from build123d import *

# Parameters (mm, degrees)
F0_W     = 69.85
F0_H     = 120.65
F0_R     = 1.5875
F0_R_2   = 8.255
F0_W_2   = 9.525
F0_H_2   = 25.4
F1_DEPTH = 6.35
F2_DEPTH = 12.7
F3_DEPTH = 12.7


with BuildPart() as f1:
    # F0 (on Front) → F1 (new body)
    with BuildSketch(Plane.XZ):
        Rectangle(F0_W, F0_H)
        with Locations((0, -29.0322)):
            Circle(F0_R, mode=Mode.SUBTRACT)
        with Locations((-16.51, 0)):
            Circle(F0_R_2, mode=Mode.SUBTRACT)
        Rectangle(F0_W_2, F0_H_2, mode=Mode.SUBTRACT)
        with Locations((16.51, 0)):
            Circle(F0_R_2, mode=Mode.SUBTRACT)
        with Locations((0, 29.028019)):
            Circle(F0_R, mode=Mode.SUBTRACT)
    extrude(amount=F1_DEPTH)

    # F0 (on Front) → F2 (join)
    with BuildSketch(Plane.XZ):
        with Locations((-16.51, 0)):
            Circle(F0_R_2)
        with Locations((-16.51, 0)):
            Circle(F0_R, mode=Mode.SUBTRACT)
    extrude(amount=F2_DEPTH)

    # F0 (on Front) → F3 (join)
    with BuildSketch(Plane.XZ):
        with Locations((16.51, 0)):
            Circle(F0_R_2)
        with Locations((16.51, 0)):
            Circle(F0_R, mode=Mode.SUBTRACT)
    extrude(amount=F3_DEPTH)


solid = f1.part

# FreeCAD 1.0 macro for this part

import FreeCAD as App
import Part
import Sketcher
Q = App.Units.Quantity

doc = App.newDocument("Part")
params = doc.addObject("Spreadsheet::Sheet", "Params")
for row, (alias, value) in enumerate([
    ("sketch1_diameter", "0.65 in"),
    ("sketch1_height", "1 in"),
    ("sketch1_diameter2", "0.125 in"),
    ("sketch1_width", "2.75 in"),
    ("sketch1_height2", "4.75 in"),
    ("pad1_length", "0.25 in"),
    ("sketch2_diameter", "0.65 in"),
    ("sketch2_diameter2", "0.125 in"),
    ("pad2_length", "0.5 in"),
    ("sketch3_diameter", "0.65 in"),
    ("sketch3_diameter2", "0.125 in"),
    ("pad3_length", "0.5 in"),
], start=1):
    params.set(f"A{row}", alias)
    params.set(f"B{row}", "=" + value)
    params.setAlias(f"B{row}", alias)

body = doc.addObject("PartDesign::Body", "Body")

# Sketch on XZ plane
sketch1 = body.newObject("Sketcher::SketchObject", "Sketch")
sketch1.AttachmentSupport = (doc.getObject("XZ_Plane"), [""])
sketch1.MapMode = "FlatFace"
sketch1.addGeometry([
    Part.LineSegment(App.Vector(-34.9, 60.3, 0), App.Vector(-34.9, -60.3, 0)),  # 0
    Part.LineSegment(App.Vector(-34.9, -60.3, 0), App.Vector(34.9, -60.3, 0)),  # 1
    Part.LineSegment(App.Vector(34.9, -60.3, 0), App.Vector(34.9, 60.3, 0)),  # 2
    Part.LineSegment(App.Vector(34.9, 60.3, 0), App.Vector(-34.9, 60.3, 0)),  # 3
    Part.Circle(App.Vector(0, -29, 0), App.Vector(0, 0, 1), 1.6),  # 4
    Part.Circle(App.Vector(-16.5, 0, 0), App.Vector(0, 0, 1), 8.3),  # 5
    Part.LineSegment(App.Vector(4.8, -12.7, 0), App.Vector(-4.8, -12.7, 0)),  # 6
    Part.LineSegment(App.Vector(-4.8, -12.7, 0), App.Vector(-4.8, 12.7, 0)),  # 7
    Part.LineSegment(App.Vector(-4.8, 12.7, 0), App.Vector(4.8, 12.7, 0)),  # 8
    Part.LineSegment(App.Vector(4.8, 12.7, 0), App.Vector(4.8, -12.7, 0)),  # 9
    Part.Circle(App.Vector(0, 29, 0), App.Vector(0, 0, 1), 1.6),  # 10
    Part.Circle(App.Vector(16.5, 0, 0), App.Vector(0, 0, 1), 8.3),  # 11
], False)
sketch1.addConstraint([
    Sketcher.Constraint("Coincident", 0, 2, 1, 1),
    Sketcher.Constraint("Coincident", 1, 2, 2, 1),
    Sketcher.Constraint("Coincident", 2, 2, 3, 1),
    Sketcher.Constraint("Coincident", 3, 2, 0, 1),
    Sketcher.Constraint("Coincident", 6, 2, 7, 1),
    Sketcher.Constraint("Coincident", 7, 2, 8, 1),
    Sketcher.Constraint("Coincident", 8, 2, 9, 1),
    Sketcher.Constraint("Coincident", 9, 2, 6, 1),
    Sketcher.Constraint("Vertical", 0),
    Sketcher.Constraint("Horizontal", 1),
    Sketcher.Constraint("Vertical", 2),
    Sketcher.Constraint("Horizontal", 3),
    Sketcher.Constraint("Horizontal", 6),
    Sketcher.Constraint("Vertical", 7),
    Sketcher.Constraint("Horizontal", 8),
    Sketcher.Constraint("Vertical", 9),
    Sketcher.Constraint("Equal", 4, 10),
    Sketcher.Constraint("Equal", 5, 11),
    Sketcher.Constraint("Symmetric", 5, 3, 11, 3, -1, 1),
    Sketcher.Constraint("Symmetric", 0, 2, 2, 2, -1, 1),
    Sketcher.Constraint("Symmetric", 6, 2, 8, 2, -1, 1),
    Sketcher.Constraint("PointOnObject", 4, 3, -2),
    Sketcher.Constraint("PointOnObject", 5, 3, -1),
    Sketcher.Constraint("PointOnObject", 10, 3, -2),
    Sketcher.Constraint("Diameter", 5, Q("0.65 in")),
    Sketcher.Constraint("DistanceY", 7, 1, 7, 2, Q("1 in")),
    Sketcher.Constraint("Diameter", 4, Q("0.125 in")),
    Sketcher.Constraint("DistanceX", 1, 1, 1, 2, Q("2.75 in")),
    Sketcher.Constraint("DistanceY", 0, 2, 0, 1, Q("4.75 in")),
    Sketcher.Constraint("DistanceX", 5, 3, 11, 3, Q("1.3 in")),
    Sketcher.Constraint("DistanceX", 6, 2, 6, 1, Q("0.375 in")),
    Sketcher.Constraint("DistanceY", 4, 3, -1, 1, Q("1.143 in")),
    Sketcher.Constraint("DistanceY", -1, 1, 10, 3, 29.028019),
])
sketch1.setExpression("Constraints[24]", "Params.sketch1_diameter")
sketch1.setExpression("Constraints[25]", "Params.sketch1_height")
sketch1.setExpression("Constraints[26]", "Params.sketch1_diameter2")
sketch1.setExpression("Constraints[27]", "Params.sketch1_width")
sketch1.setExpression("Constraints[28]", "Params.sketch1_height2")
pad1 = body.newObject("PartDesign::Pad", "Pad")
pad1.Profile = sketch1
pad1.setExpression("Length", "Params.pad1_length")

# Sketch on XZ plane
sketch2 = body.newObject("Sketcher::SketchObject", "Sketch001")
sketch2.AttachmentSupport = (doc.getObject("XZ_Plane"), [""])
sketch2.MapMode = "FlatFace"
sketch2.addGeometry([
    Part.Circle(App.Vector(-16.5, 0, 0), App.Vector(0, 0, 1), 8.3),
    Part.Circle(App.Vector(-16.5, 0, 0), App.Vector(0, 0, 1), 1.6),
], False)
sketch2.addConstraint([
    Sketcher.Constraint("Coincident", 1, 3, 0, 3),
    Sketcher.Constraint("PointOnObject", 0, 3, -1),
    Sketcher.Constraint("Diameter", 0, Q("0.65 in")),
    Sketcher.Constraint("Diameter", 1, Q("0.125 in")),
    Sketcher.Constraint("DistanceX", 0, 3, -1, 1, Q("0.65 in")),
])
sketch2.setExpression("Constraints[2]", "Params.sketch2_diameter")
sketch2.setExpression("Constraints[3]", "Params.sketch2_diameter2")
pad2 = body.newObject("PartDesign::Pad", "Pad001")
pad2.Profile = sketch2
pad2.setExpression("Length", "Params.pad2_length")

# Sketch on XZ plane
sketch3 = body.newObject("Sketcher::SketchObject", "Sketch002")
sketch3.AttachmentSupport = (doc.getObject("XZ_Plane"), [""])
sketch3.MapMode = "FlatFace"
sketch3.addGeometry([
    Part.Circle(App.Vector(16.5, 0, 0), App.Vector(0, 0, 1), 8.3),
    Part.Circle(App.Vector(16.5, 0, 0), App.Vector(0, 0, 1), 1.6),
], False)
sketch3.addConstraint([
    Sketcher.Constraint("Coincident", 1, 3, 0, 3),
    Sketcher.Constraint("PointOnObject", 0, 3, -1),
    Sketcher.Constraint("Diameter", 0, Q("0.65 in")),
    Sketcher.Constraint("Diameter", 1, Q("0.125 in")),
    Sketcher.Constraint("DistanceX", -1, 1, 0, 3, Q("0.65 in")),
])
sketch3.setExpression("Constraints[2]", "Params.sketch3_diameter")
sketch3.setExpression("Constraints[3]", "Params.sketch3_diameter2")
pad3 = body.newObject("PartDesign::Pad", "Pad002")
pad3.Profile = sketch3
pad3.setExpression("Length", "Params.pad3_length")

doc.recompute()
